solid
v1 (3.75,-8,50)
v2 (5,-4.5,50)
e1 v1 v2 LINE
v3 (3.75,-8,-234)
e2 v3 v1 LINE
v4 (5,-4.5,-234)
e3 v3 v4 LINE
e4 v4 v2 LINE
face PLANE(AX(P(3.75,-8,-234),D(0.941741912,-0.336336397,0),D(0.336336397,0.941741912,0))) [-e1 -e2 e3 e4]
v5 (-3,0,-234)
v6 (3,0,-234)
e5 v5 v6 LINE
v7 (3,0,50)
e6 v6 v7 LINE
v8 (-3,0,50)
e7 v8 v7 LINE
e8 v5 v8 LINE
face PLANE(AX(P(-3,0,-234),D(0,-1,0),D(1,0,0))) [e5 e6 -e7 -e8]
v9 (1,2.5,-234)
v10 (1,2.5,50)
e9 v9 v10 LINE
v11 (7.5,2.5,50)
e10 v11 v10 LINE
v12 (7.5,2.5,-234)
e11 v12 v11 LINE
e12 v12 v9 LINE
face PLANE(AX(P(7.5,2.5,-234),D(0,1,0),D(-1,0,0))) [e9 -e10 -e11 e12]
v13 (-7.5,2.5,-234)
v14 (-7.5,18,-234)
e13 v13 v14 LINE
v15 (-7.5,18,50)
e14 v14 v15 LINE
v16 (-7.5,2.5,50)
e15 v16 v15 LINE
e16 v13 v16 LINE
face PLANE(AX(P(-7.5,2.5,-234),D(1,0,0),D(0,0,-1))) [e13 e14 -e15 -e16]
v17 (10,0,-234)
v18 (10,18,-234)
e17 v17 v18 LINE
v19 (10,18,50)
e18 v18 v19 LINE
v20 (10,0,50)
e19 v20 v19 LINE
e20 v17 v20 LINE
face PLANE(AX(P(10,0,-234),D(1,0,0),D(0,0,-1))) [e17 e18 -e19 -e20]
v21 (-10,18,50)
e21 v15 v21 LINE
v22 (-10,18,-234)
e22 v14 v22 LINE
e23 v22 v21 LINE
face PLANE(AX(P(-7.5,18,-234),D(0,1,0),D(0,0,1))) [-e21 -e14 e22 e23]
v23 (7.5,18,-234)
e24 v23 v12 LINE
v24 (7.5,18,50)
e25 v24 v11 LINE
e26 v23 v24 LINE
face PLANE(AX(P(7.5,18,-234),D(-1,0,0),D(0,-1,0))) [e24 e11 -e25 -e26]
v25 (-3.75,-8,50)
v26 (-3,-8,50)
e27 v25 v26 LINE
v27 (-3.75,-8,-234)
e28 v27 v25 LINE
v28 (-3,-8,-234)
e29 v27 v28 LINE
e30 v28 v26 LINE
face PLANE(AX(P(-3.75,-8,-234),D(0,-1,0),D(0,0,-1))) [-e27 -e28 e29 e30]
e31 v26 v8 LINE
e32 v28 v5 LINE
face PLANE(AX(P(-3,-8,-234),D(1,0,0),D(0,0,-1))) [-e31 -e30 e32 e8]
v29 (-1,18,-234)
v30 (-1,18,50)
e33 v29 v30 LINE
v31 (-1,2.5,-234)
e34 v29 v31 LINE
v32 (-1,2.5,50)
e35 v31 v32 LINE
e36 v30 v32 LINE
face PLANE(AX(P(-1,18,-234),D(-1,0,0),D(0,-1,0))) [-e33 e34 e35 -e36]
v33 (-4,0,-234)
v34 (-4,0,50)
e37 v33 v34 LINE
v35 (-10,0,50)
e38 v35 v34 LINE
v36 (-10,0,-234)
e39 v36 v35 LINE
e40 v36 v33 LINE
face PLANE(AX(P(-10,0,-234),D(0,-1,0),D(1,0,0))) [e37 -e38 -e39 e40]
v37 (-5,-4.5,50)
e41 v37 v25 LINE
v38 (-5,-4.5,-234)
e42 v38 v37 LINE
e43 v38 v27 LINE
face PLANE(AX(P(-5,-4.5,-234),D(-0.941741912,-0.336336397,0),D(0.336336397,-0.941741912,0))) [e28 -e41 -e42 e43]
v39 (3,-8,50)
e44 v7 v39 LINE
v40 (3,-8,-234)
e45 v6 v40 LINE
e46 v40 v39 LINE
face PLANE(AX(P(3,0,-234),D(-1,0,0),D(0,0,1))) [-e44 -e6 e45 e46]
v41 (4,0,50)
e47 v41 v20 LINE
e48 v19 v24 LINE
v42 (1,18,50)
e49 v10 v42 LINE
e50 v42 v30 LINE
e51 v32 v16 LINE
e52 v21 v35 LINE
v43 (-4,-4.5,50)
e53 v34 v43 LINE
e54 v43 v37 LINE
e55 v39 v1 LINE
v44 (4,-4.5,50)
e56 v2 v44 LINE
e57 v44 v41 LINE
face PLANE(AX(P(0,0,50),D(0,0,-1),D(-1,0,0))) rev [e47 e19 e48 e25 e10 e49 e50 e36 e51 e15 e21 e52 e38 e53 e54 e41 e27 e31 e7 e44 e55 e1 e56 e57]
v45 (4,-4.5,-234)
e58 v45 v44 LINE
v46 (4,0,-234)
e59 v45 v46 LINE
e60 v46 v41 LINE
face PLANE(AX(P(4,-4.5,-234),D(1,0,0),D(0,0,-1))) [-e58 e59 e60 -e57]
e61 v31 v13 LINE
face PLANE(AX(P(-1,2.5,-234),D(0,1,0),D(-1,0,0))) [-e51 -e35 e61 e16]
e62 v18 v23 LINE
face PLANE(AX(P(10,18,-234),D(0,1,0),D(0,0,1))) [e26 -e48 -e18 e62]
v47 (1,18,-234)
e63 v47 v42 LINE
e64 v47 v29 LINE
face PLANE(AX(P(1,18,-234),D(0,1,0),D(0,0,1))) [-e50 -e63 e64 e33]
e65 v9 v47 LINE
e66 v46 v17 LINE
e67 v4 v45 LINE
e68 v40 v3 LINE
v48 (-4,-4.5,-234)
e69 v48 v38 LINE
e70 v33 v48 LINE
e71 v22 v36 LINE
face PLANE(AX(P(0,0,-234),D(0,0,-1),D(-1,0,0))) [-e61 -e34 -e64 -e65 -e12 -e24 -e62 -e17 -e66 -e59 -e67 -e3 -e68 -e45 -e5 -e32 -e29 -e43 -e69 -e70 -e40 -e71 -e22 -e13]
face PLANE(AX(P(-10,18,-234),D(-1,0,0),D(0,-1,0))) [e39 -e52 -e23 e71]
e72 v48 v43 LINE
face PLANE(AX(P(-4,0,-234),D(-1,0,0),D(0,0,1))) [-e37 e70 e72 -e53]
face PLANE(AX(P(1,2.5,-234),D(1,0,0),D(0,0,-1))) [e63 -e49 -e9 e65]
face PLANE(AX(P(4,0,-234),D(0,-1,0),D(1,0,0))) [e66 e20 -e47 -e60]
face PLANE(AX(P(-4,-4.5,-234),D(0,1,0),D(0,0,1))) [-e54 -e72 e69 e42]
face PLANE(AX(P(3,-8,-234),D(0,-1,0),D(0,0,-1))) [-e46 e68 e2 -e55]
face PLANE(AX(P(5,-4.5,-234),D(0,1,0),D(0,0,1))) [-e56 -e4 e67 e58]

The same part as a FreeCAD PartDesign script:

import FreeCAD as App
import Part
import Sketcher
from FreeCAD import Vector
Q = App.Units.Quantity

doc = App.newDocument("Part")
params = doc.addObject("Spreadsheet::Sheet", "Params")
for row, (alias, value) in enumerate([
    ("sketch1_width", "6 mm"),
    ("sketch1_width2", "1 mm"),
    ("sketch1_width3", "2 mm"),
    ("sketch1_height", "18 mm"),
    ("sketch1_height2", "8 mm"),
    ("pad1_length", "284 mm"),
], start=1):
    params.set(f"A{row}", alias)
    params.set(f"B{row}", "=" + value)
    params.setAlias(f"B{row}", alias)

body = doc.addObject("PartDesign::Body", "Body")

sketch1 = doc.addObject("Sketcher::SketchObject", "Sketch")
body.addObject(sketch1)
sketch1.AttachmentSupport = (doc.XY_Plane, [""])
sketch1.MapMode = "FlatFace"
sketch1.AttachmentOffset = App.Placement(Vector(0, 0, 50), App.Rotation())
sketch1.addGeometry(Part.LineSegment(Vector(-1, 2.5, 0), Vector(-7.5, 2.5, 0)), False)
sketch1.addGeometry(Part.LineSegment(Vector(-7.5, 2.5, 0), Vector(-7.5, 18, 0)), False)
sketch1.addGeometry(Part.LineSegment(Vector(-7.5, 18, 0), Vector(-10, 18, 0)), False)
sketch1.addGeometry(Part.LineSegment(Vector(-10, 18, 0), Vector(-10, 0, 0)), False)
sketch1.addGeometry(Part.LineSegment(Vector(-10, 0, 0), Vector(-4, 0, 0)), False)
sketch1.addGeometry(Part.LineSegment(Vector(-4, 0, 0), Vector(-4, -4.5, 0)), False)
sketch1.addGeometry(Part.LineSegment(Vector(-4, -4.5, 0), Vector(-5, -4.5, 0)), False)
sketch1.addGeometry(Part.LineSegment(Vector(-5, -4.5, 0), Vector(-3.8, -8, 0)), False)
sketch1.addGeometry(Part.LineSegment(Vector(-3.8, -8, 0), Vector(-3, -8, 0)), False)
sketch1.addGeometry(Part.LineSegment(Vector(-3, -8, 0), Vector(-3, 0, 0)), False)
sketch1.addGeometry(Part.LineSegment(Vector(-3, 0, 0), Vector(3, 0, 0)), False)
sketch1.addGeometry(Part.LineSegment(Vector(3, 0, 0), Vector(3, -8, 0)), False)
sketch1.addGeometry(Part.LineSegment(Vector(3, -8, 0), Vector(3.8, -8, 0)), False)
sketch1.addGeometry(Part.LineSegment(Vector(3.8, -8, 0), Vector(5, -4.5, 0)), False)
sketch1.addGeometry(Part.LineSegment(Vector(5, -4.5, 0), Vector(4, -4.5, 0)), False)
sketch1.addGeometry(Part.LineSegment(Vector(4, -4.5, 0), Vector(4, 0, 0)), False)
sketch1.addGeometry(Part.LineSegment(Vector(4, 0, 0), Vector(10, 0, 0)), False)
sketch1.addGeometry(Part.LineSegment(Vector(10, 0, 0), Vector(10, 18, 0)), False)
sketch1.addGeometry(Part.LineSegment(Vector(10, 18, 0), Vector(7.5, 18, 0)), False)
sketch1.addGeometry(Part.LineSegment(Vector(7.5, 18, 0), Vector(7.5, 2.5, 0)), False)
sketch1.addGeometry(Part.LineSegment(Vector(7.5, 2.5, 0), Vector(1, 2.5, 0)), False)
sketch1.addGeometry(Part.LineSegment(Vector(1, 2.5, 0), Vector(1, 18, 0)), False)
sketch1.addGeometry(Part.LineSegment(Vector(1, 18, 0), Vector(-1, 18, 0)), False)
sketch1.addGeometry(Part.LineSegment(Vector(-1, 18, 0), Vector(-1, 2.5, 0)), False)
sketch1.addConstraint(Sketcher.Constraint("Coincident", 0, 2, 1, 1))
sketch1.addConstraint(Sketcher.Constraint("Coincident", 1, 2, 2, 1))
sketch1.addConstraint(Sketcher.Constraint("Coincident", 2, 2, 3, 1))
sketch1.addConstraint(Sketcher.Constraint("Coincident", 3, 2, 4, 1))
sketch1.addConstraint(Sketcher.Constraint("Coincident", 4, 2, 5, 1))
sketch1.addConstraint(Sketcher.Constraint("Coincident", 5, 2, 6, 1))
sketch1.addConstraint(Sketcher.Constraint("Coincident", 6, 2, 7, 1))
sketch1.addConstraint(Sketcher.Constraint("Coincident", 7, 2, 8, 1))
sketch1.addConstraint(Sketcher.Constraint("Coincident", 8, 2, 9, 1))
sketch1.addConstraint(Sketcher.Constraint("Coincident", 9, 2, 10, 1))
sketch1.addConstraint(Sketcher.Constraint("Coincident", 10, 2, 11, 1))
sketch1.addConstraint(Sketcher.Constraint("Coincident", 11, 2, 12, 1))
sketch1.addConstraint(Sketcher.Constraint("Coincident", 12, 2, 13, 1))
sketch1.addConstraint(Sketcher.Constraint("Coincident", 13, 2, 14, 1))
sketch1.addConstraint(Sketcher.Constraint("Coincident", 14, 2, 15, 1))
sketch1.addConstraint(Sketcher.Constraint("Coincident", 15, 2, 16, 1))
sketch1.addConstraint(Sketcher.Constraint("Coincident", 16, 2, 17, 1))
sketch1.addConstraint(Sketcher.Constraint("Coincident", 17, 2, 18, 1))
sketch1.addConstraint(Sketcher.Constraint("Coincident", 18, 2, 19, 1))
sketch1.addConstraint(Sketcher.Constraint("Coincident", 19, 2, 20, 1))
sketch1.addConstraint(Sketcher.Constraint("Coincident", 20, 2, 21, 1))
sketch1.addConstraint(Sketcher.Constraint("Coincident", 21, 2, 22, 1))
sketch1.addConstraint(Sketcher.Constraint("Coincident", 22, 2, 23, 1))
sketch1.addConstraint(Sketcher.Constraint("Coincident", 23, 2, 0, 1))
sketch1.addConstraint(Sketcher.Constraint("Horizontal", 0))
sketch1.addConstraint(Sketcher.Constraint("Vertical", 1))
sketch1.addConstraint(Sketcher.Constraint("Horizontal", 2))
sketch1.addConstraint(Sketcher.Constraint("Vertical", 3))
sketch1.addConstraint(Sketcher.Constraint("Horizontal", 4))
sketch1.addConstraint(Sketcher.Constraint("Vertical", 5))
sketch1.addConstraint(Sketcher.Constraint("Horizontal", 6))
sketch1.addConstraint(Sketcher.Constraint("Horizontal", 8))
sketch1.addConstraint(Sketcher.Constraint("Vertical", 9))
sketch1.addConstraint(Sketcher.Constraint("Horizontal", 10))
sketch1.addConstraint(Sketcher.Constraint("Vertical", 11))
sketch1.addConstraint(Sketcher.Constraint("Horizontal", 12))
sketch1.addConstraint(Sketcher.Constraint("Horizontal", 14))
sketch1.addConstraint(Sketcher.Constraint("Vertical", 15))
sketch1.addConstraint(Sketcher.Constraint("Horizontal", 16))
sketch1.addConstraint(Sketcher.Constraint("Vertical", 17))
sketch1.addConstraint(Sketcher.Constraint("Horizontal", 18))
sketch1.addConstraint(Sketcher.Constraint("Vertical", 19))
sketch1.addConstraint(Sketcher.Constraint("Horizontal", 20))
sketch1.addConstraint(Sketcher.Constraint("Vertical", 21))
sketch1.addConstraint(Sketcher.Constraint("Horizontal", 22))
sketch1.addConstraint(Sketcher.Constraint("Vertical", 23))
sketch1.addConstraint(Sketcher.Constraint("Symmetric", 9, 2, 10, 2, -1, 1))
sketch1.addConstraint(Sketcher.Constraint("Symmetric", 4, 2, 15, 2, -1, 1))
sketch1.addConstraint(Sketcher.Constraint("Symmetric", 7, 2, 12, 2, -2))
sketch1.addConstraint(Sketcher.Constraint("Symmetric", 6, 2, 13, 2, -2))
sketch1.addConstraint(Sketcher.Constraint("Symmetric", 3, 2, 16, 2, -2))
sketch1.addConstraint(Sketcher.Constraint("Symmetric", 1, 2, 18, 2, -2))
sketch1.addConstraint(Sketcher.Constraint("Symmetric", 20, 2, 23, 2, -2))
sketch1.addConstraint(Sketcher.Constraint("Horizontal", 18, 2, 21, 2))
sketch1.addConstraint(Sketcher.Constraint("Equal", 4, 10))
sketch1.addConstraint(Sketcher.Constraint("DistanceX", 4, 1, 4, 2, Q("6 mm")))
sketch1.addConstraint(Sketcher.Constraint("DistanceX", 6, 2, 6, 1, Q("1 mm")))
sketch1.addConstraint(Sketcher.Constraint("DistanceX", 22, 2, 22, 1, Q("2 mm")))
sketch1.addConstraint(Sketcher.Constraint("DistanceY", 3, 2, 3, 1, Q("18 mm")))
sketch1.addConstraint(Sketcher.Constraint("DistanceY", 9, 1, 9, 2, Q("8 mm")))
sketch1.addConstraint(Sketcher.Constraint("DistanceX", 0, 2, 0, 1, Q("6.5 mm")))
sketch1.addConstraint(Sketcher.Constraint("DistanceX", 2, 2, 2, 1, Q("2.5 mm")))
sketch1.addConstraint(Sketcher.Constraint("DistanceY", 1, 1, 1, 2, Q("15.5 mm")))
sketch1.addConstraint(Sketcher.Constraint("DistanceY", 5, 2, 5, 1, Q("4.5 mm")))
sketch1.addConstraint(Sketcher.Constraint("DistanceX", 8, 1, 8, 2, Q("0.75 mm")))
sketch1.setExpression("Constraints[55]", "Params.sketch1_width")
sketch1.setExpression("Constraints[56]", "Params.sketch1_width2")
sketch1.setExpression("Constraints[57]", "Params.sketch1_width3")
sketch1.setExpression("Constraints[58]", "Params.sketch1_height")
sketch1.setExpression("Constraints[59]", "Params.sketch1_height2")
pad1 = doc.addObject("PartDesign::Pad", "Pad")
body.addObject(pad1)
pad1.Profile = sketch1
pad1.setExpression("Length", "Params.pad1_length")
pad1.Reversed = True

doc.recompute()
